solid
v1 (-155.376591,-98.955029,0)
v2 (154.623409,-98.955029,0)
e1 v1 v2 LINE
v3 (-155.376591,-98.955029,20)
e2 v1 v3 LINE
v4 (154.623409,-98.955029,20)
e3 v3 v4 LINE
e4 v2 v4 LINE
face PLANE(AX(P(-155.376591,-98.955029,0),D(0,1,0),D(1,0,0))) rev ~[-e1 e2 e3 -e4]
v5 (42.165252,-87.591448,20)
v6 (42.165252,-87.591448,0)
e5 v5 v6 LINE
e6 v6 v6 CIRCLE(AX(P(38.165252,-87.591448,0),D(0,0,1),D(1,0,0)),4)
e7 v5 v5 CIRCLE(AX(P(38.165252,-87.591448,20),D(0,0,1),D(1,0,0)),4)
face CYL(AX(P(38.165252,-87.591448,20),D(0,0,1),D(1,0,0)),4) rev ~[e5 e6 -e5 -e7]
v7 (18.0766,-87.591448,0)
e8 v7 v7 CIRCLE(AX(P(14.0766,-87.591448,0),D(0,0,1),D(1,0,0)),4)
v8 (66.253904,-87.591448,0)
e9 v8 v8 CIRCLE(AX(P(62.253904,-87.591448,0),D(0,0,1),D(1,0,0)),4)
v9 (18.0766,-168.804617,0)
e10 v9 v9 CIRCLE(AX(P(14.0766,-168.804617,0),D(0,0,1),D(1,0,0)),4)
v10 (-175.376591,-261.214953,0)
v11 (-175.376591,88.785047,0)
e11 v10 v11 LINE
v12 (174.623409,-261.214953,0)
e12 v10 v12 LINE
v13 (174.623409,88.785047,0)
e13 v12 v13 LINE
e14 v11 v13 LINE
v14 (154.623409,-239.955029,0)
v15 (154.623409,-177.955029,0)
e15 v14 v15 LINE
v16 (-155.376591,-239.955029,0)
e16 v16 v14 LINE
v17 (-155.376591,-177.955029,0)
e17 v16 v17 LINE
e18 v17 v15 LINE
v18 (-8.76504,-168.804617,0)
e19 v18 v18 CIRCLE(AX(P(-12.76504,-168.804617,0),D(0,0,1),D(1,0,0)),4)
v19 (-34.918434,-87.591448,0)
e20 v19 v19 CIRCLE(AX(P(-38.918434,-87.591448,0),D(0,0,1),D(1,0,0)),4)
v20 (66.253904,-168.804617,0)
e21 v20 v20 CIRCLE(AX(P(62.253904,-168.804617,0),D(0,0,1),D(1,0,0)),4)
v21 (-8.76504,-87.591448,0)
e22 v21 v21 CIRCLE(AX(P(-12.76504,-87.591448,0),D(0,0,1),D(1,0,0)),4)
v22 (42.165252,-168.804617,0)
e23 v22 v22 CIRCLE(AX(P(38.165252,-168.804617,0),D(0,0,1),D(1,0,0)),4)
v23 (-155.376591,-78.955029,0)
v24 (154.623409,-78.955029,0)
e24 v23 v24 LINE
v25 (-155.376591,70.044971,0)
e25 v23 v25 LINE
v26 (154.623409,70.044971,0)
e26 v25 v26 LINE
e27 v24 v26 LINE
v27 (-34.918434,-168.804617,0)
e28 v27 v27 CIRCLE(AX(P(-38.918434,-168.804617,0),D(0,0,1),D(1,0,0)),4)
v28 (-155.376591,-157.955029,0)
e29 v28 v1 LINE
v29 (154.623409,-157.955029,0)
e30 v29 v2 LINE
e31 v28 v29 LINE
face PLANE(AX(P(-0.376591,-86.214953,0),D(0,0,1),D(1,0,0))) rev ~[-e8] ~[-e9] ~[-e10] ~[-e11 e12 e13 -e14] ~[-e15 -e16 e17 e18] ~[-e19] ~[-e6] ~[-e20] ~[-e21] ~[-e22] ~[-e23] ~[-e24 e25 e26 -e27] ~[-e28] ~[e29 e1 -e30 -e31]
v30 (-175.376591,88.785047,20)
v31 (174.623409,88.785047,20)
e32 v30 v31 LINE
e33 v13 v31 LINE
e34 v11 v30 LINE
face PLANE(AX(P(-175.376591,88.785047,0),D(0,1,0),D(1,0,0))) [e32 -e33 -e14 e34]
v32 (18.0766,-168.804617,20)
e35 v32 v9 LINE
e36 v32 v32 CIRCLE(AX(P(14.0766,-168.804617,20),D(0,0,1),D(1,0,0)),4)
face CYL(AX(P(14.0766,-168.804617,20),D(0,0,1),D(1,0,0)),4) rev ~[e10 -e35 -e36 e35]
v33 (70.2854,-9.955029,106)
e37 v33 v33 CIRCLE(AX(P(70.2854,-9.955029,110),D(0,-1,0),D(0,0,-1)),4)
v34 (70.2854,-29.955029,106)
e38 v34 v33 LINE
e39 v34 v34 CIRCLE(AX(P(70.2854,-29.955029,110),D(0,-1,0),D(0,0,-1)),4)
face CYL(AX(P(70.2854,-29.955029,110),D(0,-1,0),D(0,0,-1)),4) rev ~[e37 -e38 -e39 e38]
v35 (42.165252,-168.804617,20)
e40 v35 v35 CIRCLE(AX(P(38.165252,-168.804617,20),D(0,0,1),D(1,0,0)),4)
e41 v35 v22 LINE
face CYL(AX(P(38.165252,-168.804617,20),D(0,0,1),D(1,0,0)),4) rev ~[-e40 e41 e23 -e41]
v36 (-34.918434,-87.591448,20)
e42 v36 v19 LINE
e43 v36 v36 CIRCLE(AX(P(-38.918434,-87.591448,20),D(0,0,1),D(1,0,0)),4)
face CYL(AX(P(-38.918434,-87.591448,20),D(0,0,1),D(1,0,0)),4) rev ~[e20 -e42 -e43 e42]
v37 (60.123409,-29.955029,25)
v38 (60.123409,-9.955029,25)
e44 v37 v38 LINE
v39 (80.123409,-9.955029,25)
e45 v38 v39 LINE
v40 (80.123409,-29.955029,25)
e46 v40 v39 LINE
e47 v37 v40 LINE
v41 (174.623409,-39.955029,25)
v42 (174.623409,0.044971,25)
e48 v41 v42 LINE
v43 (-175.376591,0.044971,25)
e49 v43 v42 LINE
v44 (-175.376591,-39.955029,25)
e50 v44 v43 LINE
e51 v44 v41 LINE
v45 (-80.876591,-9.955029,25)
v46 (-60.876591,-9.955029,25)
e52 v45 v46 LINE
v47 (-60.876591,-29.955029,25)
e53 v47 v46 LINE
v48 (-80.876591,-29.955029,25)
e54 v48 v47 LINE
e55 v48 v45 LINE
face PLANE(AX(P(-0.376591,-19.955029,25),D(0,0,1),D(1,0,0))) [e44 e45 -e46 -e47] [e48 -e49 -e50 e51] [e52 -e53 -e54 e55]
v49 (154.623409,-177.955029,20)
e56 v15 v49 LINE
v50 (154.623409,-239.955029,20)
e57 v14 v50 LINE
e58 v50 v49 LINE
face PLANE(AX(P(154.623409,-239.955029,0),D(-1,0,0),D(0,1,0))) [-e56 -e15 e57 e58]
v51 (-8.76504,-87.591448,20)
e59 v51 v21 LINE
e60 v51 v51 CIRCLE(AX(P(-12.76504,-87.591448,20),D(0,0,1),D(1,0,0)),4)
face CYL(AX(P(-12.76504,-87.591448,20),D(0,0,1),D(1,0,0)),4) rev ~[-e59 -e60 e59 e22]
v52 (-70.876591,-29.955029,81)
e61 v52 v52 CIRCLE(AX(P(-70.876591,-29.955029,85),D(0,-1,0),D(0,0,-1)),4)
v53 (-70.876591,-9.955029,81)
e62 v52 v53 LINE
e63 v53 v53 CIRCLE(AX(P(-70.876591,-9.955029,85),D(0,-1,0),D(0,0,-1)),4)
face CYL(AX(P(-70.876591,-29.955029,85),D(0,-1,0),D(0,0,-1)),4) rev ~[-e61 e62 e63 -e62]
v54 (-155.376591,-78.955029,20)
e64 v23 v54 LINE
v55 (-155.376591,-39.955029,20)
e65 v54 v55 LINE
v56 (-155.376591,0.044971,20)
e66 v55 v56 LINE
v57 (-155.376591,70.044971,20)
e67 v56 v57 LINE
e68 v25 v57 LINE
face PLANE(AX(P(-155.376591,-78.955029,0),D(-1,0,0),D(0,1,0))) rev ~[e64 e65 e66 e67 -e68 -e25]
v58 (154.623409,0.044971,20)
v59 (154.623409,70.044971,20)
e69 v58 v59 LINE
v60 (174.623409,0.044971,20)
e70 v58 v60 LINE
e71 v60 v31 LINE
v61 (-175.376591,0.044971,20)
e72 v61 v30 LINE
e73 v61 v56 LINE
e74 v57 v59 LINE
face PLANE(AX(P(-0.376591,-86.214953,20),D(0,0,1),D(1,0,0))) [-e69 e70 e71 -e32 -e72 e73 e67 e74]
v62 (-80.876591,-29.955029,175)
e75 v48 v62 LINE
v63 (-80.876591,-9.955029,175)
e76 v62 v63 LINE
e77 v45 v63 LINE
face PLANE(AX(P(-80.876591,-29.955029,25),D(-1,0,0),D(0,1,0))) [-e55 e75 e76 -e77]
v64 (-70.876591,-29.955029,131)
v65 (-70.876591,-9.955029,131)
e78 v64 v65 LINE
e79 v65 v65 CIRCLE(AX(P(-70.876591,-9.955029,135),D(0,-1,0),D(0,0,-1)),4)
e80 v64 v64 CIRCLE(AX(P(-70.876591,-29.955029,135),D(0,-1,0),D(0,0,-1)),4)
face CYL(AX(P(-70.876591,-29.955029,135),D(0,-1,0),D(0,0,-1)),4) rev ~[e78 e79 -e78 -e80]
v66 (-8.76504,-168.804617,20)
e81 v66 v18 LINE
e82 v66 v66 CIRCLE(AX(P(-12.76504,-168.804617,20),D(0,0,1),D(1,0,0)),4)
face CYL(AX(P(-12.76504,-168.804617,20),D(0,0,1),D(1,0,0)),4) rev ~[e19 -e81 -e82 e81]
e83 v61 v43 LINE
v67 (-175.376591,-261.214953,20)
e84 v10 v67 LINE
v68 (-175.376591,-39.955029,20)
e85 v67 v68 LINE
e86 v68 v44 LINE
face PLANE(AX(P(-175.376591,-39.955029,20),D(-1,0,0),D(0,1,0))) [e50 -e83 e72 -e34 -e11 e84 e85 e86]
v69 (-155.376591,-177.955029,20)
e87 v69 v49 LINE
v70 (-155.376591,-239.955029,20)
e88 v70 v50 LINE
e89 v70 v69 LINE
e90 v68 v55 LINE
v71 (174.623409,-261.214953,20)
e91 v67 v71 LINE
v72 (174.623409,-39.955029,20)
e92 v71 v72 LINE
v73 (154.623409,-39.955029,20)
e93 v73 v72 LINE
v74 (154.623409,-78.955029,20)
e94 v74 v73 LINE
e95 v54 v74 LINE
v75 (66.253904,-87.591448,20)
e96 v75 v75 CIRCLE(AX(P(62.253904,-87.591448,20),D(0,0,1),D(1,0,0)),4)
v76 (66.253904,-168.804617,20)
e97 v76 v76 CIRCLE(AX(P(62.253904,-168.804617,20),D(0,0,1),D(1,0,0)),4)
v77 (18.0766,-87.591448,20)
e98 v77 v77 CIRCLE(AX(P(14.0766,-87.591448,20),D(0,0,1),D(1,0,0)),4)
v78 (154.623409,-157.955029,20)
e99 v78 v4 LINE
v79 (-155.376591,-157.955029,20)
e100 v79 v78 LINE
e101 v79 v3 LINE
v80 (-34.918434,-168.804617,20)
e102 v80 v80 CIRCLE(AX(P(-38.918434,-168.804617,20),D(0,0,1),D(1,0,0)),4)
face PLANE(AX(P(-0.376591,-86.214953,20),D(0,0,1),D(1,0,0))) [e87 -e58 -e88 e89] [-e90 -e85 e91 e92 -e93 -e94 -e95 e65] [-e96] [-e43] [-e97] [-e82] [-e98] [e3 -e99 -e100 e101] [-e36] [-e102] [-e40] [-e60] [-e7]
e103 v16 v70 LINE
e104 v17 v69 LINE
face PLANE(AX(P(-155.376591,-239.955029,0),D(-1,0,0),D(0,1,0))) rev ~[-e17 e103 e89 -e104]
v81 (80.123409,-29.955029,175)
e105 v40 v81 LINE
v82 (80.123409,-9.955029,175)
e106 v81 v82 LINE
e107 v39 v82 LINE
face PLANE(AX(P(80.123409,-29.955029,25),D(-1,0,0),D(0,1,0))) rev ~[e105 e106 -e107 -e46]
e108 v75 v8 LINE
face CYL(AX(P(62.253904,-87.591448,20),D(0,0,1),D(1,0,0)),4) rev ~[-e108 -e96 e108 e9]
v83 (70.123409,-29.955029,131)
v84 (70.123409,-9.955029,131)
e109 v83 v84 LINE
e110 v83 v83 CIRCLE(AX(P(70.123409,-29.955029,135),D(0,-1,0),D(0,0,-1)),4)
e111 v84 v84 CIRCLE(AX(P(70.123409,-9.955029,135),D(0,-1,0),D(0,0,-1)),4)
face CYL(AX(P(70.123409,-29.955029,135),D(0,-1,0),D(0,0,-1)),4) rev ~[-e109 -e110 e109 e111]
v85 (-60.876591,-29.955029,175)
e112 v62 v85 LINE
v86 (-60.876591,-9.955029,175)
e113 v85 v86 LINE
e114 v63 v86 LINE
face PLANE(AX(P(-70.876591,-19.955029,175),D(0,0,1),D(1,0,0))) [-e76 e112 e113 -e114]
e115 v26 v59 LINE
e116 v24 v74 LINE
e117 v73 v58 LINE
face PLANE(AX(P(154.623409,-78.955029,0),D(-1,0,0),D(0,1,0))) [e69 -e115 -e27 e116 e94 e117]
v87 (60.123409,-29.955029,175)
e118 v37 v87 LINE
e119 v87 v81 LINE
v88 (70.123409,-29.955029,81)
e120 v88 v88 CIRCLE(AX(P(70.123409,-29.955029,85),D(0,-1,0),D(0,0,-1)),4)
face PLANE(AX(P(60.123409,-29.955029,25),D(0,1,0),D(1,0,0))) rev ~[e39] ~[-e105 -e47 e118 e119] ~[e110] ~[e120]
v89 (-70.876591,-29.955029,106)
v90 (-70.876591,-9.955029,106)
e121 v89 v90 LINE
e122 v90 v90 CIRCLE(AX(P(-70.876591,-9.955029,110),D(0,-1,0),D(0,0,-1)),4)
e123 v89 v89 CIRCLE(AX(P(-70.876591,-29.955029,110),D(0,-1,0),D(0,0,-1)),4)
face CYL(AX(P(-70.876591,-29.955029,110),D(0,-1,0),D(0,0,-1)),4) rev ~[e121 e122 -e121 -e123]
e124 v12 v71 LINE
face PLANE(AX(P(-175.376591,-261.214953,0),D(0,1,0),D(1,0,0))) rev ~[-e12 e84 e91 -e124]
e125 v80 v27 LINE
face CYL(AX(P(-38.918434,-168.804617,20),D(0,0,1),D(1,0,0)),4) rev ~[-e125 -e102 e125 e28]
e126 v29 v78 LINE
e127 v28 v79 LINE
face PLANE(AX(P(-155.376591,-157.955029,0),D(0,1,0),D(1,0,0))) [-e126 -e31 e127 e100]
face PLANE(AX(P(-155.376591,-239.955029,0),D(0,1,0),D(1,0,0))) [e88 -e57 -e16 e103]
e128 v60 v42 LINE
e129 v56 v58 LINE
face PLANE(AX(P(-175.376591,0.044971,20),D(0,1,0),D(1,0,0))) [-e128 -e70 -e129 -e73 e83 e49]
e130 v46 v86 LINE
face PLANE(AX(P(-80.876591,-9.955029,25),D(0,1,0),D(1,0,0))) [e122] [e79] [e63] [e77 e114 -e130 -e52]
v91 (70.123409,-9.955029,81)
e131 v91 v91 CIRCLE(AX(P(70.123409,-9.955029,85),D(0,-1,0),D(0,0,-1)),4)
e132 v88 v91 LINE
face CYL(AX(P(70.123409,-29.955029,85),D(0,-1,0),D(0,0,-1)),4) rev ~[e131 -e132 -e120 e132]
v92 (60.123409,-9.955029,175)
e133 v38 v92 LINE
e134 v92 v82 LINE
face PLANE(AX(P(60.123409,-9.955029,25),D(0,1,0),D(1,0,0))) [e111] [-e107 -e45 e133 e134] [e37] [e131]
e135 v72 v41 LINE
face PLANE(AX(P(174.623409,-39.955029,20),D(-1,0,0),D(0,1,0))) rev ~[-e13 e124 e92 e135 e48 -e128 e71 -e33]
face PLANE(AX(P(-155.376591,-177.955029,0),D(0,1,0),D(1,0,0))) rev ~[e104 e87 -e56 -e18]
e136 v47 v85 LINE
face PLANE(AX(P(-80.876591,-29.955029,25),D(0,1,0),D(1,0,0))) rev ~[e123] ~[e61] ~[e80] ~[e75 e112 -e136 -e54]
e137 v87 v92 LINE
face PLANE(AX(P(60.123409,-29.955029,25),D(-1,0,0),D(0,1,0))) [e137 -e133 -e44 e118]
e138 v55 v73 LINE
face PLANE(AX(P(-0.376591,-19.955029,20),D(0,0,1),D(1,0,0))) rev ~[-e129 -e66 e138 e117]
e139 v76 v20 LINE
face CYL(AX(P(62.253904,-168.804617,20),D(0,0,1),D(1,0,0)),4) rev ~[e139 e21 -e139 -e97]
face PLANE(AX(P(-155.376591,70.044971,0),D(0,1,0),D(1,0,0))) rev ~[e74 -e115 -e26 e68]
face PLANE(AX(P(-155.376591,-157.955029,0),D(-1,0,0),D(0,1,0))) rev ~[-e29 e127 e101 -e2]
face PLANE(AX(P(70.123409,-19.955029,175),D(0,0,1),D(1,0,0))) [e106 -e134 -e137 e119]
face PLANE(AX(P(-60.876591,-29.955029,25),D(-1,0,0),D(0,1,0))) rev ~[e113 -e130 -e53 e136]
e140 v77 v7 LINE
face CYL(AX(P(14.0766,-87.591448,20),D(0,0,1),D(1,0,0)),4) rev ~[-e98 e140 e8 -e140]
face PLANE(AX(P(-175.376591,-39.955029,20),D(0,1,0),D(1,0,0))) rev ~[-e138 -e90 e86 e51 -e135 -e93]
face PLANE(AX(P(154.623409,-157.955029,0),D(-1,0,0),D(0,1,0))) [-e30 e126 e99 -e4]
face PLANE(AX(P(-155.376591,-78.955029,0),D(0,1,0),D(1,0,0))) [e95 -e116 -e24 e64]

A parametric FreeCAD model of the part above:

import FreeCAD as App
import Part
import Sketcher
from FreeCAD import Vector
Q = App.Units.Quantity


def add_polygon(sketch, points):
    """Adds a closed chain of lines whose ends are joined by coincident constraints."""
    first, n = sketch.GeometryCount, len(points)
    for a, b in zip(points, points[1:] + points[:1]):
        sketch.addGeometry(Part.LineSegment(App.Vector(*a, 0), App.Vector(*b, 0)), False)
    for i in range(n):
        sketch.addConstraint(Sketcher.Constraint("Coincident", first + i, 2, first + (i + 1) % n, 1))

doc = App.newDocument("Part")
body = doc.addObject("PartDesign::Body", "Body")

# Sketch on XY plane
sketch1 = body.newObject("Sketcher::SketchObject", "Sketch")
sketch1.AttachmentSupport = (doc.getObject("XY_Plane"), [""])
sketch1.MapMode = "FlatFace"
add_polygon(sketch1, [(-175, 89), (-175, -261), (175, -261), (175, 89)])  # lines 0-3
add_polygon(sketch1, [(155, -240), (-155, -240), (-155, -178), (155, -178)])  # lines 4-7
add_polygon(sketch1, [(155, -158), (-155, -158), (-155, -99), (155, -99)])  # lines 8-11
add_polygon(sketch1, [(155, -79), (-155, -79), (-155, 70), (155, 70)])  # lines 12-15
sketch1.addConstraint([
    Sketcher.Constraint("Vertical", 0),
    Sketcher.Constraint("Horizontal", 1),
    Sketcher.Constraint("Vertical", 2),
    Sketcher.Constraint("Horizontal", 3),
    Sketcher.Constraint("Horizontal", 4),
    Sketcher.Constraint("Vertical", 5),
    Sketcher.Constraint("Horizontal", 6),
    Sketcher.Constraint("Vertical", 7),
    Sketcher.Constraint("Horizontal", 8),
    Sketcher.Constraint("Vertical", 9),
    Sketcher.Constraint("Horizontal", 10),
    Sketcher.Constraint("Vertical", 11),
    Sketcher.Constraint("Horizontal", 12),
    Sketcher.Constraint("Vertical", 13),
    Sketcher.Constraint("Horizontal", 14),
    Sketcher.Constraint("Vertical", 15),
    Sketcher.Constraint("Vertical", 5, 2, 8, 2),
    Sketcher.Constraint("Vertical", 7, 2, 10, 2),
    Sketcher.Constraint("Vertical", 9, 2, 12, 2),
    Sketcher.Constraint("Vertical", 11, 2, 14, 2),
    Sketcher.Constraint("Equal", 3, 0),
    Sketcher.Constraint("DistanceX", 1, 1, 1, 2, Q("350 mm")),
    Sketcher.Constraint("DistanceX", 4, 2, 4, 1, Q("310 mm")),
    Sketcher.Constraint("DistanceY", 5, 1, 5, 2, Q("62 mm")),
    Sketcher.Constraint("DistanceY", 9, 1, 9, 2, Q("59 mm")),
    Sketcher.Constraint("DistanceY", 13, 1, 13, 2, Q("149 mm")),
    Sketcher.Constraint("DistanceX", 0, 2, 4, 2, Q("20 mm")),
    Sketcher.Constraint("DistanceY", 5, 2, 8, 2, Q("20 mm")),
    Sketcher.Constraint("DistanceY", 9, 2, 12, 2, Q("20 mm")),
    Sketcher.Constraint("DistanceX", 0, 2, -1, 1, Q("175.376591 mm")),
    Sketcher.Constraint("DistanceY", 4, 2, -1, 1, Q("239.955029 mm")),
    Sketcher.Constraint("DistanceY", 0, 2, -1, 1, Q("261.214953 mm")),
])
pad1 = body.newObject("PartDesign::Pad", "Pad")
pad1.Profile = sketch1
pad1.Length = 20

# Sketch on XY plane
sketch2 = body.newObject("Sketcher::SketchObject", "Sketch001")
sketch2.AttachmentSupport = (doc.getObject("XY_Plane"), [""])
sketch2.MapMode = "FlatFace"
sketch2.AttachmentOffset = App.Placement(Vector(0, 0, 20), App.Rotation())
add_polygon(sketch2, [(-175, 0), (-175, -40), (175, -40), (175, 0)])  # lines 0-3
sketch2.addConstraint([
    Sketcher.Constraint("Vertical", 0),
    Sketcher.Constraint("Horizontal", 1),
    Sketcher.Constraint("Vertical", 2),
    Sketcher.Constraint("Horizontal", 3),
    Sketcher.Constraint("DistanceX", 1, 1, 1, 2, Q("350 mm")),
    Sketcher.Constraint("DistanceY", 0, 2, 0, 1, Q("40 mm")),
    Sketcher.Constraint("DistanceX", 0, 2, -1, 1, Q("175.376591 mm")),
    Sketcher.Constraint("DistanceY", 0, 2, -1, 1, Q("39.955029 mm")),
])
pad2 = body.newObject("PartDesign::Pad", "Pad001")
pad2.Profile = sketch2
pad2.Length = 5

# Sketch on XY plane
sketch3 = body.newObject("Sketcher::SketchObject", "Sketch002")
sketch3.AttachmentSupport = (doc.getObject("XY_Plane"), [""])
sketch3.MapMode = "FlatFace"
sketch3.AttachmentOffset = App.Placement(Vector(0, 0, 25), App.Rotation())
add_polygon(sketch3, [(-81, -10), (-81, -30), (-61, -30), (-61, -10)])  # lines 0-3
add_polygon(sketch3, [(60, -10), (60, -30), (80, -30), (80, -10)])  # lines 4-7
sketch3.addConstraint([
    Sketcher.Constraint("Vertical", 0),
    Sketcher.Constraint("Horizontal", 1),
    Sketcher.Constraint("Vertical", 2),
    Sketcher.Constraint("Horizontal", 3),
    Sketcher.Constraint("Vertical", 4),
    Sketcher.Constraint("Horizontal", 5),
    Sketcher.Constraint("Vertical", 6),
    Sketcher.Constraint("Horizontal", 7),
    Sketcher.Constraint("Horizontal", 1, 2, 4, 2),
    Sketcher.Constraint("Horizontal", 3, 2, 6, 2),
    Sketcher.Constraint("Equal", 3, 5),
    Sketcher.Constraint("Equal", 7, 0),
    Sketcher.Constraint("DistanceX", 1, 1, 1, 2, Q("20 mm")),
    Sketcher.Constraint("DistanceX", 1, 2, 4, 2, Q("121 mm")),
    Sketcher.Constraint("DistanceX", 0, 2, -1, 1, Q("80.876591 mm")),
    Sketcher.Constraint("DistanceY", 0, 2, -1, 1, Q("29.955029 mm")),
])
pad3 = body.newObject("PartDesign::Pad", "Pad002")
pad3.Profile = sketch3
pad3.Length = 150

# Sketch on XZ plane
sketch4 = body.newObject("Sketcher::SketchObject", "Sketch003")
sketch4.AttachmentSupport = (doc.getObject("XZ_Plane"), [""])
sketch4.MapMode = "FlatFace"
sketch4.AttachmentOffset = App.Placement(Vector(0, 0, 29.955029), App.Rotation())
sketch4.addGeometry([
    Part.Circle(Vector(-70.9, 135, 0), Vector(0, 0, 1), 4),
    Part.Circle(Vector(-70.9, 85, 0), Vector(0, 0, 1), 4),
    Part.Circle(Vector(70.1, 135, 0), Vector(0, 0, 1), 4),
    Part.Circle(Vector(70.1, 85, 0), Vector(0, 0, 1), 4),
], False)
sketch4.addConstraint([
    Sketcher.Constraint("Equal", 0, 1),
    Sketcher.Constraint("Equal", 1, 2),
    Sketcher.Constraint("Equal", 2, 3),
    Sketcher.Constraint("Horizontal", 0, 3, 2, 3),
    Sketcher.Constraint("Horizontal", 1, 3, 3, 3),
    Sketcher.Constraint("Vertical", 0, 3, 1, 3),
    Sketcher.Constraint("Vertical", 2, 3, 3, 3),
    Sketcher.Constraint("Diameter", 0, Q("8 mm")),
    Sketcher.Constraint("DistanceY", -1, 1, 0, 3, Q("135 mm")),
    Sketcher.Constraint("DistanceY", -1, 1, 1, 3, Q("85 mm")),
    Sketcher.Constraint("DistanceX", 0, 3, 2, 3, Q("141 mm")),
    Sketcher.Constraint("DistanceX", 0, 3, -1, 1, Q("70.876591 mm")),
])
pocket1 = body.newObject("PartDesign::Pocket", "Pocket")
pocket1.Profile = sketch4
pocket1.Type = "ThroughAll"

# Sketch on XY plane
sketch5 = body.newObject("Sketcher::SketchObject", "Sketch004")
sketch5.AttachmentSupport = (doc.getObject("XY_Plane"), [""])
sketch5.MapMode = "FlatFace"
sketch5.AttachmentOffset = App.Placement(Vector(0, 0, 20), App.Rotation())
sketch5.addGeometry([
    Part.Circle(Vector(-38.9, -87.6, 0), Vector(0, 0, 1), 4),  # 0
    Part.Circle(Vector(-12.8, -87.6, 0), Vector(0, 0, 1), 4),  # 1
    Part.Circle(Vector(14.1, -87.6, 0), Vector(0, 0, 1), 4),  # 2
    Part.Circle(Vector(38.2, -87.6, 0), Vector(0, 0, 1), 4),  # 3
    Part.Circle(Vector(62.3, -87.6, 0), Vector(0, 0, 1), 4),  # 4
    Part.Circle(Vector(62.3, -168.8, 0), Vector(0, 0, 1), 4),  # 5
    Part.Circle(Vector(38.2, -168.8, 0), Vector(0, 0, 1), 4),  # 6
    Part.Circle(Vector(14.1, -168.8, 0), Vector(0, 0, 1), 4),  # 7
    Part.Circle(Vector(-12.8, -168.8, 0), Vector(0, 0, 1), 4),  # 8
    Part.Circle(Vector(-38.9, -168.8, 0), Vector(0, 0, 1), 4),  # 9
], False)
sketch5.addConstraint([
    Sketcher.Constraint("Equal", 0, 1),
    Sketcher.Constraint("Equal", 1, 2),
    Sketcher.Constraint("Equal", 2, 3),
    Sketcher.Constraint("Equal", 3, 4),
    Sketcher.Constraint("Equal", 4, 5),
    Sketcher.Constraint("Equal", 5, 6),
    Sketcher.Constraint("Equal", 6, 7),
    Sketcher.Constraint("Equal", 7, 8),
    Sketcher.Constraint("Equal", 8, 9),
    Sketcher.Constraint("Horizontal", 0, 3, 1, 3),
    Sketcher.Constraint("Horizontal", 1, 3, 2, 3),
    Sketcher.Constraint("Horizontal", 2, 3, 3, 3),
    Sketcher.Constraint("Horizontal", 3, 3, 4, 3),
    Sketcher.Constraint("Horizontal", 5, 3, 6, 3),
    Sketcher.Constraint("Horizontal", 6, 3, 7, 3),
    Sketcher.Constraint("Horizontal", 7, 3, 8, 3),
    Sketcher.Constraint("Horizontal", 8, 3, 9, 3),
    Sketcher.Constraint("Vertical", 4, 3, 5, 3),
    Sketcher.Constraint("Vertical", 3, 3, 6, 3),
    Sketcher.Constraint("Vertical", 2, 3, 7, 3),
    Sketcher.Constraint("Vertical", 1, 3, 8, 3),
    Sketcher.Constraint("Vertical", 0, 3, 9, 3),
    Sketcher.Constraint("Diameter", 0, Q("8 mm")),
    Sketcher.Constraint("DistanceX", -1, 1, 2, 3, Q("14.0766 mm")),
    Sketcher.Constraint("DistanceX", 1, 3, -1, 1, Q("12.76504 mm")),
    Sketcher.Constraint("DistanceX", 2, 3, 3, 3, Q("24.088652 mm")),
    Sketcher.Constraint("DistanceX", 3, 3, 4, 3, Q("24.088652 mm")),
    Sketcher.Constraint("DistanceY", 5, 3, 4, 3, Q("81.213169 mm")),
    Sketcher.Constraint("DistanceX", 0, 3, -1, 1, Q("38.918434 mm")),
    Sketcher.Constraint("DistanceY", 0, 3, -1, 1, Q("87.591448 mm")),
])
pocket2 = body.newObject("PartDesign::Pocket", "Pocket001")
pocket2.Profile = sketch5
pocket2.Type = "ThroughAll"

# Sketch on XZ plane
sketch6 = body.newObject("Sketcher::SketchObject", "Sketch005")
sketch6.AttachmentSupport = (doc.getObject("XZ_Plane"), [""])
sketch6.MapMode = "FlatFace"
sketch6.AttachmentOffset = App.Placement(Vector(0, 0, 29.955029), App.Rotation())
sketch6.addGeometry([
    Part.Circle(Vector(-70.9, 110, 0), Vector(0, 0, 1), 4),
    Part.Circle(Vector(70.3, 110, 0), Vector(0, 0, 1), 4),
], False)
sketch6.addConstraint([
    Sketcher.Constraint("Equal", 0, 1),
    Sketcher.Constraint("Horizontal", 0, 3, 1, 3),
    Sketcher.Constraint("Diameter", 0, Q("8 mm")),
    Sketcher.Constraint("DistanceY", -1, 1, 0, 3, Q("110 mm")),
    Sketcher.Constraint("DistanceX", -1, 1, 1, 3, Q("70.2854 mm")),
    Sketcher.Constraint("DistanceX", 0, 3, -1, 1, Q("70.876591 mm")),
])
pocket3 = body.newObject("PartDesign::Pocket", "Pocket002")
pocket3.Profile = sketch6
pocket3.Type = "ThroughAll"

doc.recompute()
